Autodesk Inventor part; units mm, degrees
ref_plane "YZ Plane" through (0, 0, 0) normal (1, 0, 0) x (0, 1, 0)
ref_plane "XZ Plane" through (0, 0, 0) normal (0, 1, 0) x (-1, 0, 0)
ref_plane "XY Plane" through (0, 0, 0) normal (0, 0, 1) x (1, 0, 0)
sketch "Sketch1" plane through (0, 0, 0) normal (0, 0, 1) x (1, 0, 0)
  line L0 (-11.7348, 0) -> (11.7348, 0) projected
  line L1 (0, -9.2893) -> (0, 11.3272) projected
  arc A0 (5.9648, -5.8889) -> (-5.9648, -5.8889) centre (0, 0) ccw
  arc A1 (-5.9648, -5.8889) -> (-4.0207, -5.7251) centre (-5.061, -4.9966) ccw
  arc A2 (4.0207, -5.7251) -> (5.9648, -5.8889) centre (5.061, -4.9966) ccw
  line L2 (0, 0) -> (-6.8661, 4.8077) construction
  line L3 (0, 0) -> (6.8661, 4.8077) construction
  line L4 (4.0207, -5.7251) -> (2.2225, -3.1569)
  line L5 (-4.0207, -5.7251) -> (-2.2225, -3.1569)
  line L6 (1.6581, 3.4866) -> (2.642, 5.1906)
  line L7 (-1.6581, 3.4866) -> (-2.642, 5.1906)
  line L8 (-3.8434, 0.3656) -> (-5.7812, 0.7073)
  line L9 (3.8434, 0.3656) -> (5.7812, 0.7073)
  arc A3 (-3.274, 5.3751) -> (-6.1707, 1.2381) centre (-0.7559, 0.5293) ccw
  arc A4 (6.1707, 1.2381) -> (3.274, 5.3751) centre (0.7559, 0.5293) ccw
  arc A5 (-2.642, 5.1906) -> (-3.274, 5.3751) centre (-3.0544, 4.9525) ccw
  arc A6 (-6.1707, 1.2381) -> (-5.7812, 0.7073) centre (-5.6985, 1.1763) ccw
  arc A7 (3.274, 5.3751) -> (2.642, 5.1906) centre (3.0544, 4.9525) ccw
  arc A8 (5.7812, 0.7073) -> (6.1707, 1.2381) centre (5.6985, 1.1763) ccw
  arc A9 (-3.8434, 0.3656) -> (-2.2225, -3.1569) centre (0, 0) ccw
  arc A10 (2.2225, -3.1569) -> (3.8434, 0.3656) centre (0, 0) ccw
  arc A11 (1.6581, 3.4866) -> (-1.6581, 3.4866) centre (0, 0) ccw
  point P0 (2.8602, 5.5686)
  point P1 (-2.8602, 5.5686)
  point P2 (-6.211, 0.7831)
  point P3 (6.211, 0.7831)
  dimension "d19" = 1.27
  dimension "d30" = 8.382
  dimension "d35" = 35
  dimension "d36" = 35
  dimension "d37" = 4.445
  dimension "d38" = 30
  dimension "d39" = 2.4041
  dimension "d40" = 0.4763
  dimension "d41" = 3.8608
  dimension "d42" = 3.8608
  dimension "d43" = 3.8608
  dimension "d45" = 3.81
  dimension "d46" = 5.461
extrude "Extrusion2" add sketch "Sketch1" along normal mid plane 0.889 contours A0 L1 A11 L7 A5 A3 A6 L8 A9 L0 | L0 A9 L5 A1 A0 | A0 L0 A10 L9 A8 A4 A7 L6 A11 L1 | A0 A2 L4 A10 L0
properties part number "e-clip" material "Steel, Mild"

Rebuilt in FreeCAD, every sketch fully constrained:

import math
import FreeCAD as App
import Part
import Sketcher
Q = App.Units.Quantity

doc = App.newDocument("Part")
body = doc.addObject("PartDesign::Body", "Body")

# Sketch on XY plane
sketch1 = doc.addObject("Sketcher::SketchObject", "Sketch")
body.addObject(sketch1)
sketch1.AttachmentSupport = (doc.XY_Plane, [""])
sketch1.MapMode = "FlatFace"
sketch1.addGeometry([
    Part.ArcOfCircle(Part.Circle(App.Vector(-5.06, -5, 0), App.Vector(0, 0, 1), 1.27), math.radians(-135), math.radians(-35)),  # 0
    Part.LineSegment(App.Vector(-4.02, -5.73, 0), App.Vector(-2.22, -3.16, 0)),  # 1
    Part.ArcOfCircle(Part.Circle(App.Vector(0, 0, 0), App.Vector(0, 0, 1), 3.86), math.radians(175), math.radians(235)),  # 2
    Part.LineSegment(App.Vector(-3.84, 0.37, 0), App.Vector(-5.78, 0.71, 0)),  # 3
    Part.ArcOfCircle(Part.Circle(App.Vector(-5.7, 1.18, 0), App.Vector(0, 0, 1), 0.48), math.radians(173), math.radians(260)),  # 4
    Part.ArcOfCircle(Part.Circle(App.Vector(-0.76, 0.53, 0), App.Vector(0, 0, 1), 5.46), math.radians(117), math.radians(173)),  # 5
    Part.ArcOfCircle(Part.Circle(App.Vector(-3.05, 4.95, 0), App.Vector(0, 0, 1), 0.48), math.radians(30), math.radians(117)),  # 6
    Part.LineSegment(App.Vector(-2.64, 5.19, 0), App.Vector(-1.66, 3.49, 0)),  # 7
    Part.ArcOfCircle(Part.Circle(App.Vector(0, 0, 0), App.Vector(0, 0, 1), 3.86), math.radians(65), math.radians(115)),  # 8
    Part.LineSegment(App.Vector(1.66, 3.49, 0), App.Vector(2.64, 5.19, 0)),  # 9
    Part.ArcOfCircle(Part.Circle(App.Vector(3.05, 4.95, 0), App.Vector(0, 0, 1), 0.48), math.radians(63), math.radians(150)),  # 10
    Part.ArcOfCircle(Part.Circle(App.Vector(0.76, 0.53, 0), App.Vector(0, 0, 1), 5.46), math.radians(7), math.radians(63)),  # 11
    Part.ArcOfCircle(Part.Circle(App.Vector(5.7, 1.18, 0), App.Vector(0, 0, 1), 0.48), math.radians(-80), math.radians(7)),  # 12
    Part.LineSegment(App.Vector(5.78, 0.71, 0), App.Vector(3.84, 0.37, 0)),  # 13
    Part.ArcOfCircle(Part.Circle(App.Vector(0, 0, 0), App.Vector(0, 0, 1), 3.86), math.radians(-55), math.radians(5)),  # 14
    Part.LineSegment(App.Vector(2.22, -3.16, 0), App.Vector(4.02, -5.73, 0)),  # 15
    Part.ArcOfCircle(Part.Circle(App.Vector(5.06, -5, 0), App.Vector(0, 0, 1), 1.27), math.radians(-145), math.radians(-45)),  # 16
    Part.ArcOfCircle(Part.Circle(App.Vector(0, 0, 0), App.Vector(0, 0, 1), 8.38), math.radians(-45), math.radians(225)),  # 17
], False)
sketch1.addConstraint([
    Sketcher.Constraint("Tangent", 0, 2, 1, 1),
    Sketcher.Constraint("Coincident", 1, 2, 2, 2),
    Sketcher.Constraint("Coincident", 2, 1, 3, 1),
    Sketcher.Constraint("Tangent", 3, 2, 4, 2),
    Sketcher.Constraint("Tangent", 4, 1, 5, 2),
    Sketcher.Constraint("Tangent", 5, 1, 6, 2),
    Sketcher.Constraint("Tangent", 6, 1, 7, 1),
    Sketcher.Constraint("Coincident", 7, 2, 8, 2),
    Sketcher.Constraint("Coincident", 8, 1, 9, 1),
    Sketcher.Constraint("Tangent", 9, 2, 10, 2),
    Sketcher.Constraint("Tangent", 10, 1, 11, 2),
    Sketcher.Constraint("Tangent", 11, 1, 12, 2),
    Sketcher.Constraint("Tangent", 12, 1, 13, 1),
    Sketcher.Constraint("Coincident", 13, 2, 14, 2),
    Sketcher.Constraint("Coincident", 14, 1, 15, 1),
    Sketcher.Constraint("Tangent", 15, 2, 16, 1),
    Sketcher.Constraint("Tangent", 16, 2, 17, 1),
    Sketcher.Constraint("Tangent", 17, 2, 0, 1),
    Sketcher.Constraint("Coincident", 2, 3, -1, 1),
    Sketcher.Constraint("Coincident", 8, 3, -1, 1),
    Sketcher.Constraint("Coincident", 14, 3, -1, 1),
    Sketcher.Constraint("Coincident", 17, 3, -1, 1),
    Sketcher.Constraint("Equal", 4, 6),
    Sketcher.Constraint("Equal", 2, 8),
    Sketcher.Constraint("Equal", 6, 10),
    Sketcher.Constraint("Equal", 5, 11),
    Sketcher.Constraint("Equal", 10, 12),
    Sketcher.Constraint("Equal", 8, 14),
    Sketcher.Constraint("Equal", 0, 16),
    Sketcher.Constraint("Symmetric", 6, 3, 10, 3, -2),
    Sketcher.Constraint("Symmetric", 4, 3, 12, 3, -2),
    Sketcher.Constraint("Symmetric", 0, 2, 15, 2, -2),
    Sketcher.Constraint("Horizontal", 7, 2, 8, 1),
    Sketcher.Constraint("Horizontal", 3, 2, 12, 1),
    Sketcher.Constraint("Equal", 3, 7),
    Sketcher.Constraint("Radius", 0, Q("0.05 in")),
    Sketcher.Constraint("Radius", 17, Q("0.33 in")),
    Sketcher.Constraint("Radius", 2, Q("0.152 in")),
    Sketcher.Constraint("Radius", 5, Q("0.215 in")),
    Sketcher.Constraint("Radius", 4, 0.4762),
    Sketcher.Constraint("DistanceX", 5, 3, 10, 3, Q("0.15 in")),
    Sketcher.Constraint("Angle", 1, Q("55.001 deg")),
    Sketcher.Constraint("Angle", 3, Q("169.9996 deg")),
    Sketcher.Constraint("DistanceX", 0, 3, 6, 3, Q("0.079 in")),
    Sketcher.Constraint("DistanceY", 5, 3, 3, 2, Q("0.007 in")),
    Sketcher.Constraint("DistanceY", -1, 1, 4, 3, Q("0.0463 in")),
    Sketcher.Constraint("DistanceX", 0, 2, -1, 1, Q("0.1583 in")),
])
pad1 = doc.addObject("PartDesign::Pad", "Pad")
body.addObject(pad1)
pad1.Profile = sketch1
pad1.Length = Q("0.035 in")
pad1.Midplane = True

doc.recompute()
